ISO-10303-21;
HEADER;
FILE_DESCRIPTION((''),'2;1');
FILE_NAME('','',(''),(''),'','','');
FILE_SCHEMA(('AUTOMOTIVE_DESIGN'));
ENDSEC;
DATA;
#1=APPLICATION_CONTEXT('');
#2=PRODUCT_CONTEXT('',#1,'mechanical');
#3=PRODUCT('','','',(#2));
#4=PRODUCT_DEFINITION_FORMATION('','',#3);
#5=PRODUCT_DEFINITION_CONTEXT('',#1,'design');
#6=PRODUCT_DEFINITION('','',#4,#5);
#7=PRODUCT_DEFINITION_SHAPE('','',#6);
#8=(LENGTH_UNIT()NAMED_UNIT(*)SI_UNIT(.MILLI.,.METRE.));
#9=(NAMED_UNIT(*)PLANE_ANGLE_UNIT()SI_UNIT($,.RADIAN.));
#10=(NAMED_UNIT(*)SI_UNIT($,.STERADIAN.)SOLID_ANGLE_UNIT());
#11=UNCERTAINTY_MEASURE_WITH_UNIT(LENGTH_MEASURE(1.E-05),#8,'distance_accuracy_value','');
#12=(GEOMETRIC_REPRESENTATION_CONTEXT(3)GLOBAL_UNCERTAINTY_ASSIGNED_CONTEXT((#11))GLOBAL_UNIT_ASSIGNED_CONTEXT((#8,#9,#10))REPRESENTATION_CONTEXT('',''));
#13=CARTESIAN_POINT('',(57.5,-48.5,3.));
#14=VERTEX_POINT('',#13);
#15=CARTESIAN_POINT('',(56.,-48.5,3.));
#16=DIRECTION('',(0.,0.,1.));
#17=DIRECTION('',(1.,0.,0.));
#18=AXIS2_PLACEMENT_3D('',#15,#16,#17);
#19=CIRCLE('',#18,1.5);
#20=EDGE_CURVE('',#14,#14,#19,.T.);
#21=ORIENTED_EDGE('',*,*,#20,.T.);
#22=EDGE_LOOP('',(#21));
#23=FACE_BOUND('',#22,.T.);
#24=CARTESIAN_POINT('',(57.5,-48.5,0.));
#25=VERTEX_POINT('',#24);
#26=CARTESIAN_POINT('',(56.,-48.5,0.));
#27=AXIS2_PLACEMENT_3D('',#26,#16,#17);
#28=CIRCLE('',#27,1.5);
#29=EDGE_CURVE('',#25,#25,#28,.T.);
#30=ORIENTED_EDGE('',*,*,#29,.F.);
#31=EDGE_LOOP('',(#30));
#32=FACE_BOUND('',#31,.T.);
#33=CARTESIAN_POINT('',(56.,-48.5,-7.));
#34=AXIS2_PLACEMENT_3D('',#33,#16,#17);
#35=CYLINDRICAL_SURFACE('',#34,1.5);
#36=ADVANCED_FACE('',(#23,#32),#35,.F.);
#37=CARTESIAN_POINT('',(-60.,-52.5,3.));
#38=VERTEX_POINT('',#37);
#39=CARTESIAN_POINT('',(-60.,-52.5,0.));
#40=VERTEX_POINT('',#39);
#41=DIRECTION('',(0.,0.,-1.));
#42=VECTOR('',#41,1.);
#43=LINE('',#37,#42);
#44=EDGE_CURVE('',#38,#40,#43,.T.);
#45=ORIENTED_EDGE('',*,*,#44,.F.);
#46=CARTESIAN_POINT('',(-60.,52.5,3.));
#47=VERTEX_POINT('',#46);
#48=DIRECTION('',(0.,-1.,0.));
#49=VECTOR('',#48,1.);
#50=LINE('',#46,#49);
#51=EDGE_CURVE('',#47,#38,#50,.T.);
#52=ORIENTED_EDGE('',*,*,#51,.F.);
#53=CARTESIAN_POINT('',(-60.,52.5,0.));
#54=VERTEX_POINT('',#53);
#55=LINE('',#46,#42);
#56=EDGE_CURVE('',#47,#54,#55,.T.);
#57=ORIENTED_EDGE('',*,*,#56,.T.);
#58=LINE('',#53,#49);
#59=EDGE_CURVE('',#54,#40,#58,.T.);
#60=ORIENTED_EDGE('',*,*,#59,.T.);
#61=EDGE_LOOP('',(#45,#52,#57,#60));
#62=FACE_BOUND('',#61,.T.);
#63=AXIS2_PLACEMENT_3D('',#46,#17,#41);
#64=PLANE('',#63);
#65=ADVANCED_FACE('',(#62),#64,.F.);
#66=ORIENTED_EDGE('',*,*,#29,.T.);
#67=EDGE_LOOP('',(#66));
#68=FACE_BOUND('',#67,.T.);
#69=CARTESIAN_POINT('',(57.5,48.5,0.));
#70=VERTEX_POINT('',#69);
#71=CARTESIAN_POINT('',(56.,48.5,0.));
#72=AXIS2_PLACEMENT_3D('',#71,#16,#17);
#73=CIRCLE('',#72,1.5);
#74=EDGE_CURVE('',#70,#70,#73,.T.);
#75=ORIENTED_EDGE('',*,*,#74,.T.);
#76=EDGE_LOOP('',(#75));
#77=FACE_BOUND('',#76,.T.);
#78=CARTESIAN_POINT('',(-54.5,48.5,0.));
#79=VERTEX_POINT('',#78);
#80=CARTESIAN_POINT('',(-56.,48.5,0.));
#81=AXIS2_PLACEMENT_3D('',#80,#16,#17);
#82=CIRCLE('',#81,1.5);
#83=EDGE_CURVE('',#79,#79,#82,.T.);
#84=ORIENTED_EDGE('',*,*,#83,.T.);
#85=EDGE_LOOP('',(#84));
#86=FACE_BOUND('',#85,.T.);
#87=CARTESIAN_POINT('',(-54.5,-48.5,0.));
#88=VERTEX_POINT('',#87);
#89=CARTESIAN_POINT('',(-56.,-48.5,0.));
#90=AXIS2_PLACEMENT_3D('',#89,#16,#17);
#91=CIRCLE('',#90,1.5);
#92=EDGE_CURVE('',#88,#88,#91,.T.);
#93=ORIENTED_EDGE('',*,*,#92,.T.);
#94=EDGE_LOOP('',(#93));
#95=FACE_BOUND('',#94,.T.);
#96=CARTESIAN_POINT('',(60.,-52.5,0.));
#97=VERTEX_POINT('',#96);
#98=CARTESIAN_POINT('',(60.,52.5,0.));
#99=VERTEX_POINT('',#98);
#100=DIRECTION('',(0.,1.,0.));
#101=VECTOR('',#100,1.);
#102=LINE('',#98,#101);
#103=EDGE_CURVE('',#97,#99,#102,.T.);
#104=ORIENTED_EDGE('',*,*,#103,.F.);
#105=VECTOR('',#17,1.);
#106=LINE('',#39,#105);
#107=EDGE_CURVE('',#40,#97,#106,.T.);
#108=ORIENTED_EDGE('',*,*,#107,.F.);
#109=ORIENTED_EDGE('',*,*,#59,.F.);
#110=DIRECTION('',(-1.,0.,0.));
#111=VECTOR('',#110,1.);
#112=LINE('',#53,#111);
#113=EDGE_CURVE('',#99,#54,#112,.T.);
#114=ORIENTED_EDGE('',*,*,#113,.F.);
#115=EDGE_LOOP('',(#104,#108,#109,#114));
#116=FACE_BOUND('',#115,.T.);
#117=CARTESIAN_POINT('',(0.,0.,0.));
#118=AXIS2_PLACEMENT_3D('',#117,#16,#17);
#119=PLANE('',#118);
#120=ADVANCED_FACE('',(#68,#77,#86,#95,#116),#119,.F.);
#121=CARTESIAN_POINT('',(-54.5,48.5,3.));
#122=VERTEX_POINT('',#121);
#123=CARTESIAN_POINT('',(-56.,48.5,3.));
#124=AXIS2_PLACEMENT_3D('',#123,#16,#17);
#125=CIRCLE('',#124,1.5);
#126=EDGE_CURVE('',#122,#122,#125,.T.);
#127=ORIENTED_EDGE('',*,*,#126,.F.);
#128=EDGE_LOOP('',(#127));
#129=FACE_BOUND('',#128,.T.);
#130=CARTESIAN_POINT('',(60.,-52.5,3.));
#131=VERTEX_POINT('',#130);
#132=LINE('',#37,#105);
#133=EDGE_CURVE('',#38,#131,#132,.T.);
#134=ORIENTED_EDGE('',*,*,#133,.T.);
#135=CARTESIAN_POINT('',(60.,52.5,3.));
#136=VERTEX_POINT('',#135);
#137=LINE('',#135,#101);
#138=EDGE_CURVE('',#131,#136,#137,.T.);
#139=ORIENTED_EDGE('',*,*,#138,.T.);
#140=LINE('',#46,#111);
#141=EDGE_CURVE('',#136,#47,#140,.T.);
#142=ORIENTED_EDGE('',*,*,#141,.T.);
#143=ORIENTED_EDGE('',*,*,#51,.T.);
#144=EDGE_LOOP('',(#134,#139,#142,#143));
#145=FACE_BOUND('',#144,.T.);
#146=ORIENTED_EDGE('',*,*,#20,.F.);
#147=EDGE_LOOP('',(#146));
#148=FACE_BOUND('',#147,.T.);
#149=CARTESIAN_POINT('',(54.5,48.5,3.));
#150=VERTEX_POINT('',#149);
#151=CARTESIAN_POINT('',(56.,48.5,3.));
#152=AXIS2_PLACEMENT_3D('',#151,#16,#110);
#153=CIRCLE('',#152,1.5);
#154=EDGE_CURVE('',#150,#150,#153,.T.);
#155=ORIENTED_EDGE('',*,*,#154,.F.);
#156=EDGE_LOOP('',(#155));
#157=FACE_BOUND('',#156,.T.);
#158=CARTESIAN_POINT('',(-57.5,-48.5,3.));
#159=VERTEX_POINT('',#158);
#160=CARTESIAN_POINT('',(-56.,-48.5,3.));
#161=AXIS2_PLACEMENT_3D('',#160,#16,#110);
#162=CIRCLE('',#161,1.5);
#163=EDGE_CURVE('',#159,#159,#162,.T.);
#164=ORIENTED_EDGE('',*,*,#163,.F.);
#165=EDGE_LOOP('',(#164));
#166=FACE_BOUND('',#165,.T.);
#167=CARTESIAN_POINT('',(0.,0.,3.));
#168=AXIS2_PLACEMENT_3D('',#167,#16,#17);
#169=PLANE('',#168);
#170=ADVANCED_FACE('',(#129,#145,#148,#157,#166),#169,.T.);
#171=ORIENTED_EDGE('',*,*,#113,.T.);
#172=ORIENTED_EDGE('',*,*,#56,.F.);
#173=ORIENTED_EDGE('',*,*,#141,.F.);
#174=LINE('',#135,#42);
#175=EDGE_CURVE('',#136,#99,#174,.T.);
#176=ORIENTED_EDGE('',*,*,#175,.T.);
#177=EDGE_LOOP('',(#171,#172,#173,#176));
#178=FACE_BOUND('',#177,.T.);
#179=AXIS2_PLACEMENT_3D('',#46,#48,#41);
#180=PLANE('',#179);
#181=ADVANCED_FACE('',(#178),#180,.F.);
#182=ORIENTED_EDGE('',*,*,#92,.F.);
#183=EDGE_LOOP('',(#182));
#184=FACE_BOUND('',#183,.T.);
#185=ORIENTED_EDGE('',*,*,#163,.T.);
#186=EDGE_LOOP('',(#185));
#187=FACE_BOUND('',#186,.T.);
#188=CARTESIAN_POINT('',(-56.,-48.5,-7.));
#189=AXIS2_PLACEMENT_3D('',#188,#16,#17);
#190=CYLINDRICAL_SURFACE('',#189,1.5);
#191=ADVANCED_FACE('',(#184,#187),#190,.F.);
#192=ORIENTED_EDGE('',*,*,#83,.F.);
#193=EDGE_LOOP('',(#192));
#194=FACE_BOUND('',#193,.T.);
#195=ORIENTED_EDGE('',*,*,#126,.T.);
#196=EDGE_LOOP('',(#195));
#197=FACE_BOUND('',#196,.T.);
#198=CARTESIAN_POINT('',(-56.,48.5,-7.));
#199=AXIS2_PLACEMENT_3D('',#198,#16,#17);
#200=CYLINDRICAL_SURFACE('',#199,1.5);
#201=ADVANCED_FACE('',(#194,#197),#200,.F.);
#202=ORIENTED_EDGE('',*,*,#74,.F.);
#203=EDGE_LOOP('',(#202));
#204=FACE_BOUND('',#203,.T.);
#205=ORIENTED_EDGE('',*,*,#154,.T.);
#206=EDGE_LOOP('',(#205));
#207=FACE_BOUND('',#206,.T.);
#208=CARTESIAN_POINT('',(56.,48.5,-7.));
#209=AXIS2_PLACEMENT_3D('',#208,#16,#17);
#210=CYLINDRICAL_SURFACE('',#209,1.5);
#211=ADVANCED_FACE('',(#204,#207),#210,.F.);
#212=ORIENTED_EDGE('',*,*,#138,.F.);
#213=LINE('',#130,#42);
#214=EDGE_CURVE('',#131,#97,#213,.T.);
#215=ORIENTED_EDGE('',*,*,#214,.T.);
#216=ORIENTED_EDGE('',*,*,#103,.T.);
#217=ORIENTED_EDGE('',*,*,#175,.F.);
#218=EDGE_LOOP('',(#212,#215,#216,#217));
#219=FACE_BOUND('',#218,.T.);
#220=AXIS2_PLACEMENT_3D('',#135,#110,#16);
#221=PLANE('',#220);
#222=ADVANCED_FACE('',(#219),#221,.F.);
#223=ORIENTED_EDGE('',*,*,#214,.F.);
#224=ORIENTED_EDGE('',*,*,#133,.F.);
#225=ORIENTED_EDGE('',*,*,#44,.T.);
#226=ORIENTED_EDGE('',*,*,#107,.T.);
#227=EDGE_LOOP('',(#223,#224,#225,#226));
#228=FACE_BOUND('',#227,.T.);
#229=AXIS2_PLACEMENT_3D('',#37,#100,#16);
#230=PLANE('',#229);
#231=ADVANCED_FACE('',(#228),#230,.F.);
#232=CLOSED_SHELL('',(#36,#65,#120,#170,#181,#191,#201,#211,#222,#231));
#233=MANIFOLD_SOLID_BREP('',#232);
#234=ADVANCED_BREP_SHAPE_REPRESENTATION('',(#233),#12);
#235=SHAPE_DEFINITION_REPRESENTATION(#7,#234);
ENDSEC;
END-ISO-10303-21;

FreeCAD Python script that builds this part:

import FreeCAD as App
import Part
import Sketcher
Q = App.Units.Quantity


def add_polygon(sketch, points):
    """Adds a closed chain of lines whose ends are joined by coincident constraints."""
    first, n = sketch.GeometryCount, len(points)
    for a, b in zip(points, points[1:] + points[:1]):
        sketch.addGeometry(Part.LineSegment(App.Vector(*a, 0), App.Vector(*b, 0)), False)
    for i in range(n):
        sketch.addConstraint(Sketcher.Constraint("Coincident", first + i, 2, first + (i + 1) % n, 1))

doc = App.newDocument("Part")
body = doc.addObject("PartDesign::Body", "Body")

sketch1 = body.newObject("Sketcher::SketchObject", "Sketch")
sketch1.AttachmentSupport = (doc.getObject("XY_Plane"), [""])
sketch1.MapMode = "FlatFace"
add_polygon(sketch1, [(-60, 52.5), (-60, -52.5), (60, -52.5), (60, 52.5)])
sketch1.addConstraint([
    Sketcher.Constraint("Vertical", 0),
    Sketcher.Constraint("Horizontal", 1),
    Sketcher.Constraint("Vertical", 2),
    Sketcher.Constraint("Horizontal", 3),
    Sketcher.Constraint("Symmetric", 0, 2, 2, 2, -1, 1),
    Sketcher.Constraint("DistanceX", 1, 1, 1, 2, Q("120 mm")),
    Sketcher.Constraint("DistanceY", 0, 2, 0, 1, Q("105 mm")),
])
pad1 = body.newObject("PartDesign::Pad", "Pad")
pad1.Profile = sketch1
pad1.Length = 3

sketch2 = body.newObject("Sketcher::SketchObject", "Sketch001")
sketch2.AttachmentSupport = (doc.getObject("XY_Plane"), [""])
sketch2.MapMode = "FlatFace"
sketch2.AttachmentOffset = App.Placement(App.Vector(0, 0, 3), App.Rotation())
sketch2.addGeometry([
    Part.Circle(App.Vector(-56, 48.5, 0), App.Vector(0, 0, 1), 1.5),
    Part.Circle(App.Vector(56, 48.5, 0), App.Vector(0, 0, 1), 1.5),
    Part.Circle(App.Vector(56, -48.5, 0), App.Vector(0, 0, 1), 1.5),
    Part.Circle(App.Vector(-56, -48.5, 0), App.Vector(0, 0, 1), 1.5),
], False)
sketch2.addConstraint([
    Sketcher.Constraint("Equal", 0, 1),
    Sketcher.Constraint("Equal", 1, 2),
    Sketcher.Constraint("Equal", 2, 3),
    Sketcher.Constraint("Symmetric", 0, 3, 2, 3, -1, 1),
    Sketcher.Constraint("Symmetric", 1, 3, 3, 3, -1, 1),
    Sketcher.Constraint("Symmetric", 0, 3, 1, 3, -2),
    Sketcher.Constraint("Diameter", 0, Q("3 mm")),
    Sketcher.Constraint("DistanceX", 0, 3, -1, 1, Q("56 mm")),
    Sketcher.Constraint("DistanceY", 2, 3, 1, 3, Q("97 mm")),
])
pocket1 = body.newObject("PartDesign::Pocket", "Pocket")
pocket1.Profile = sketch2
pocket1.Length = 10

doc.recompute()
